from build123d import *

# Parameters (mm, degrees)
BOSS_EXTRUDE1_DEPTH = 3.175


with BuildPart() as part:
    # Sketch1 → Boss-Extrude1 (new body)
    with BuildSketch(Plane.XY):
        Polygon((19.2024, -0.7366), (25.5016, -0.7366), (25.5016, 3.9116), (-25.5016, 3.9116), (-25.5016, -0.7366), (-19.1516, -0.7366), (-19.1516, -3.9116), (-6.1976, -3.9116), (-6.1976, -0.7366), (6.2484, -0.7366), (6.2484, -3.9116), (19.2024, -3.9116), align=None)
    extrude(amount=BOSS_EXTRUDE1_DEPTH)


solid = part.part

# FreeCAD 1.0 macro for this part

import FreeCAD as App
import Part
import Sketcher
Q = App.Units.Quantity


def add_polygon(sketch, points):
    """Adds a closed chain of lines whose ends are joined by coincident constraints."""
    first, n = sketch.GeometryCount, len(points)
    for a, b in zip(points, points[1:] + points[:1]):
        sketch.addGeometry(Part.LineSegment(App.Vector(*a, 0), App.Vector(*b, 0)), False)
    for i in range(n):
        sketch.addConstraint(Sketcher.Constraint("Coincident", first + i, 2, first + (i + 1) % n, 1))

doc = App.newDocument("Part")
body = doc.addObject("PartDesign::Body", "Body")

# Sketch on XY plane
sketch1 = body.newObject("Sketcher::SketchObject", "Sketch")
sketch1.AttachmentSupport = (doc.getObject("XY_Plane"), [""])
sketch1.MapMode = "FlatFace"
add_polygon(sketch1, [(19.2, -0.7), (25.5, -0.7), (25.5, 3.9), (-25.5, 3.9), (-25.5, -0.7), (-19.2, -0.7), (-19.2, -3.9), (-6.2, -3.9), (-6.2, -0.7), (6.2, -0.7), (6.2, -3.9), (19.2, -3.9)])  # lines 0-11
sketch1.addConstraint(Sketcher.Constraint("Horizontal", 0))
sketch1.addConstraint(Sketcher.Constraint("Vertical", 1))
sketch1.addConstraint(Sketcher.Constraint("Horizontal", 2))
sketch1.addConstraint(Sketcher.Constraint("Vertical", 3))
sketch1.addConstraint(Sketcher.Constraint("Horizontal", 4))
sketch1.addConstraint(Sketcher.Constraint("Vertical", 5))
sketch1.addConstraint(Sketcher.Constraint("Horizontal", 6))
sketch1.addConstraint(Sketcher.Constraint("Vertical", 7))
sketch1.addConstraint(Sketcher.Constraint("Horizontal", 8))
sketch1.addConstraint(Sketcher.Constraint("Vertical", 9))
sketch1.addConstraint(Sketcher.Constraint("Horizontal", 10))
sketch1.addConstraint(Sketcher.Constraint("Vertical", 11))
sketch1.addConstraint(Sketcher.Constraint("Symmetric", 0, 2, 3, 2, -2))
sketch1.addConstraint(Sketcher.Constraint("Horizontal", 4, 2, 7, 2))
sketch1.addConstraint(Sketcher.Constraint("Horizontal", 6, 2, 9, 2))
sketch1.addConstraint(Sketcher.Constraint("Equal", 6, 10))
sketch1.addConstraint(Sketcher.Constraint("DistanceX", 4, 2, 8, 2, Q("1 in")))
sketch1.addConstraint(Sketcher.Constraint("DistanceX", 4, 1, 4, 2, Q("0.25 in")))
sketch1.addConstraint(Sketcher.Constraint("DistanceX", 6, 1, 6, 2, Q("0.51 in")))
sketch1.addConstraint(Sketcher.Constraint("DistanceX", 0, 1, 0, 2, Q("0.248 in")))
sketch1.addConstraint(Sketcher.Constraint("DistanceY", 1, 1, 1, 2, Q("0.183 in")))
sketch1.addConstraint(Sketcher.Constraint("DistanceY", 5, 2, 5, 1, Q("0.125 in")))
sketch1.addConstraint(Sketcher.Constraint("DistanceY", 0, 2, -1, 1, Q("0.029 in")))
pad1 = body.newObject("PartDesign::Pad", "Pad")
pad1.Profile = sketch1
pad1.Length = Q("0.125 in")

doc.recompute()
